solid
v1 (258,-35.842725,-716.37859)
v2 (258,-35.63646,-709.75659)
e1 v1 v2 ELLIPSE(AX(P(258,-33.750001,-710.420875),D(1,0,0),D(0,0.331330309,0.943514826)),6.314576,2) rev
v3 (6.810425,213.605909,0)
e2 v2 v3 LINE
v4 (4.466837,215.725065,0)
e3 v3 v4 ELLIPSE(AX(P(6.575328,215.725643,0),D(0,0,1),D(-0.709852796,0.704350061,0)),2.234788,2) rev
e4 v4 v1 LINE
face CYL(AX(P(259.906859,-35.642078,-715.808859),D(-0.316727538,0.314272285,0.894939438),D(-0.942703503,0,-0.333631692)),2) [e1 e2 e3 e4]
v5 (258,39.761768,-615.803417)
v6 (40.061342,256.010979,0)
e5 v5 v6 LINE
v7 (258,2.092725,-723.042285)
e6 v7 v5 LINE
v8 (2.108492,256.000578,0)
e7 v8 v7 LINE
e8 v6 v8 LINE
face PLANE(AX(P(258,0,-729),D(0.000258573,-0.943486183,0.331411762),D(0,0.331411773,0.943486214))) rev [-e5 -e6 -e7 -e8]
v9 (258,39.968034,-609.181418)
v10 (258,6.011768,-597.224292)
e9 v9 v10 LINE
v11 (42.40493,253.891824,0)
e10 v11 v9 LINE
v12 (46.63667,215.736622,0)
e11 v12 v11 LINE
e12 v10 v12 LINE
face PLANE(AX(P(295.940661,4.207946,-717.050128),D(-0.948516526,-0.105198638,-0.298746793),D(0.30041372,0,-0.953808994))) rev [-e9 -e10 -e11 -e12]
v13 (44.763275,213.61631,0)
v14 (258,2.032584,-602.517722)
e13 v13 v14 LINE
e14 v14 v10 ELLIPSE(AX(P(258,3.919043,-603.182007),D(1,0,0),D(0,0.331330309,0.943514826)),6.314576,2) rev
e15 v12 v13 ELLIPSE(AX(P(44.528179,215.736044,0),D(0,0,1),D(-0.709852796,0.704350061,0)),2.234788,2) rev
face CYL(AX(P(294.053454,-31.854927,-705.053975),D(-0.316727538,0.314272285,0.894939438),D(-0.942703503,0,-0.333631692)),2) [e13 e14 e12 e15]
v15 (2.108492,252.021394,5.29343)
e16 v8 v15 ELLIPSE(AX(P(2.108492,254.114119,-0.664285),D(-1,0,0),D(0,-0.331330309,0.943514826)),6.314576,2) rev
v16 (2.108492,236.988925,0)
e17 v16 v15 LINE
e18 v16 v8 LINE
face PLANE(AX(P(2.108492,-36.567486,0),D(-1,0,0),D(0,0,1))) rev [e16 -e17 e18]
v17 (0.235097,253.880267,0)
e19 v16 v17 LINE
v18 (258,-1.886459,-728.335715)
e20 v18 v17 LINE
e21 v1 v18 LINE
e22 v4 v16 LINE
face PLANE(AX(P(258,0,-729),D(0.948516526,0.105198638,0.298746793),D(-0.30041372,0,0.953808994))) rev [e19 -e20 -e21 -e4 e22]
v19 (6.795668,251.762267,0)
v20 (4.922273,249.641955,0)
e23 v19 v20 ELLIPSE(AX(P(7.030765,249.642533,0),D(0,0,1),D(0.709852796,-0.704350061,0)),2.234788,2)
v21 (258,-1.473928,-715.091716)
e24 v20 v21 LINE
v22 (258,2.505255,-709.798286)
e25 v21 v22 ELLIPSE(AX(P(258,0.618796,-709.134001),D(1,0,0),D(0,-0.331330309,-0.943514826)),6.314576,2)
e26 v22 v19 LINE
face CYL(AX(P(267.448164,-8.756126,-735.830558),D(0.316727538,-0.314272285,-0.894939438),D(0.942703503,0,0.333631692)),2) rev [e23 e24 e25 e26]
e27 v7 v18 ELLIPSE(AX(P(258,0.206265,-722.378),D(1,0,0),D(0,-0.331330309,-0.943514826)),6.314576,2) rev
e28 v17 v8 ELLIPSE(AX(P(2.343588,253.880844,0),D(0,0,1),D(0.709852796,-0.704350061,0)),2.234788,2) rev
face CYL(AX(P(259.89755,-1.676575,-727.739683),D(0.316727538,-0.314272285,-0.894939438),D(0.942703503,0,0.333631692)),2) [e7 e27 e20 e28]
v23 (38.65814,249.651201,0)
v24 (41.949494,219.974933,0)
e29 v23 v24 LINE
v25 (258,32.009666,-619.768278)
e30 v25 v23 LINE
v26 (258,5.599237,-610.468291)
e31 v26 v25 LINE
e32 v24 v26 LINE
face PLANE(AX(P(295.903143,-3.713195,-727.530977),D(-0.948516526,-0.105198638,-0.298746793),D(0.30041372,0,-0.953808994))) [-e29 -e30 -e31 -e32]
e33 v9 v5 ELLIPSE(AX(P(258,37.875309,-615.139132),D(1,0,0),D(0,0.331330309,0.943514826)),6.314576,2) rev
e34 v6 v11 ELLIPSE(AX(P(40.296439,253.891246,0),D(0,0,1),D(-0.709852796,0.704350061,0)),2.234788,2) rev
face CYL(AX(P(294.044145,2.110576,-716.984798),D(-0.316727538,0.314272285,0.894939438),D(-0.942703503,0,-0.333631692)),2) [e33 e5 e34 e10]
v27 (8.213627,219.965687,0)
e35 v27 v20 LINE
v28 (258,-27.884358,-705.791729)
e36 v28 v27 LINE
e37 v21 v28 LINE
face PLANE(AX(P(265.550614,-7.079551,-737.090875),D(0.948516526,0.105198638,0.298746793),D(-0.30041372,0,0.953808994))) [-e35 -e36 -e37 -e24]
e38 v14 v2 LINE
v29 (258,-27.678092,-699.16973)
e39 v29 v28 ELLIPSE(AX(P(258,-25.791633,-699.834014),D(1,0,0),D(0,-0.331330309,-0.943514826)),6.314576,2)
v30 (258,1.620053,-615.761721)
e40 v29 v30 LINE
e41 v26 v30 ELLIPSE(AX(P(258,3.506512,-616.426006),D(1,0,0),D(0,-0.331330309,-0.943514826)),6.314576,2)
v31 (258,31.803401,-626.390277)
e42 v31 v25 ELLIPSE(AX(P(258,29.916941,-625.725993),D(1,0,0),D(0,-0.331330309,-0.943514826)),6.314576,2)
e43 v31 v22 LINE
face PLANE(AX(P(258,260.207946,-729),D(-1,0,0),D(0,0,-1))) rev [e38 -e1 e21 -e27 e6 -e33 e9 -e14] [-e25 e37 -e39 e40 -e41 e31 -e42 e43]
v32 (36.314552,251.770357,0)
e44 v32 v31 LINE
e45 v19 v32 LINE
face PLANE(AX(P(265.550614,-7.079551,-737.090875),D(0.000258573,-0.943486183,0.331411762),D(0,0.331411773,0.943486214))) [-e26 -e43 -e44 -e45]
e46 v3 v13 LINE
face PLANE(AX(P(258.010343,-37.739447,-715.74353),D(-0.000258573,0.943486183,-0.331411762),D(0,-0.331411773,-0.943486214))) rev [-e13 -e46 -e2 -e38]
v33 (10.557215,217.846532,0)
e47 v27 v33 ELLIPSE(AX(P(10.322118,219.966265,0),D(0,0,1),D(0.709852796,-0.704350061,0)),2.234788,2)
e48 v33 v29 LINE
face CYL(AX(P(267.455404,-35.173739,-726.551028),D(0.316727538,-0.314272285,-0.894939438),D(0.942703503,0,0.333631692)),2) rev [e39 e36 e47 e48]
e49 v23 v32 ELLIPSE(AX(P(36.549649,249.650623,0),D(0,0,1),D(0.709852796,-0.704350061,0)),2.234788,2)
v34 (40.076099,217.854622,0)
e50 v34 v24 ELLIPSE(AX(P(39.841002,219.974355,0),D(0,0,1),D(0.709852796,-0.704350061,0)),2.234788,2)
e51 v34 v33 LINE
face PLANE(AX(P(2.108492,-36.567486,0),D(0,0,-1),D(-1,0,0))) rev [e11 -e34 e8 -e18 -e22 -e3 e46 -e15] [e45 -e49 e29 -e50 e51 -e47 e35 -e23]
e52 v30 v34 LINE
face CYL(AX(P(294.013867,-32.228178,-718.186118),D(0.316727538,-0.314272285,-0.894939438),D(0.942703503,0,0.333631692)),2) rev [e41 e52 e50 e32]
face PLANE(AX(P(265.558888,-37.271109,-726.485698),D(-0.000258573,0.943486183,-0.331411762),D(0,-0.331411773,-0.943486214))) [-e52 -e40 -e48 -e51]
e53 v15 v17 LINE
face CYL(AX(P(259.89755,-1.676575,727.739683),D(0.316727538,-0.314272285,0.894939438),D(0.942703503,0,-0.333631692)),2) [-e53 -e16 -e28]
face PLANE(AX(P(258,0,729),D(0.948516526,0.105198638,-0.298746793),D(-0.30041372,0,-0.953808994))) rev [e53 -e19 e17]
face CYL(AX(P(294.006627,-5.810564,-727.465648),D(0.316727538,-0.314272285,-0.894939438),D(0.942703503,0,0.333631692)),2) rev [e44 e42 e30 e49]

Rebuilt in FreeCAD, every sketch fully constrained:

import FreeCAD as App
import Part
import Sketcher

V = App.Vector
Q = App.Units.Quantity


def edges_at(feature, points):
    """Names of the edges that pass closest to the given points."""
    edges = feature.Shape.Edges
    near = lambda p: min(range(len(edges)), key=lambda i: edges[i].distToShape(Part.Vertex(*p))[0])
    return sorted({f"Edge{near(p) + 1}" for p in points})


def add_polygon(sketch, points):
    """Adds a closed chain of lines whose ends are joined by coincident constraints."""
    first, n = sketch.GeometryCount, len(points)
    for a, b in zip(points, points[1:] + points[:1]):
        sketch.addGeometry(Part.LineSegment(App.Vector(*a, 0), App.Vector(*b, 0)), False)
    for i in range(n):
        sketch.addConstraint(Sketcher.Constraint("Coincident", first + i, 2, first + (i + 1) % n, 1))

doc = App.newDocument("Part")
body = doc.addObject("PartDesign::Body", "Body")

# Sketch on XY plane
sketch1 = body.newObject("Sketcher::SketchObject", "Sketch")
sketch1.AttachmentSupport = (doc.getObject("XY_Plane"), [""])
sketch1.MapMode = "FlatFace"
add_polygon(sketch1, [(0, 0), (258, 0), (0, 256)])  # lines 0-2
sketch1.addConstraint([
    Sketcher.Constraint("Horizontal", 0),
    Sketcher.Constraint("Vertical", 2),
    Sketcher.Constraint("Coincident", 2, 2, -1, 1),
    Sketcher.Constraint("DistanceX", 0, 1, 0, 2, Q("258 mm")),
    Sketcher.Constraint("DistanceY", 2, 2, 2, 1, Q("256 mm")),
])
pad1 = body.newObject("PartDesign::Pad", "Pad")
pad1.Profile = sketch1
pad1.Length = 729

# Sketch on YZ plane
sketch2 = body.newObject("Sketcher::SketchObject", "Sketch001")
sketch2.AttachmentSupport = (doc.getObject("YZ_Plane"), [""])
sketch2.MapMode = "FlatFace"
add_polygon(sketch2, [(256, 0), (0, 729), (256, 729)])  # lines 0-2
sketch2.addConstraint([
    Sketcher.Constraint("Horizontal", 1),
    Sketcher.Constraint("Vertical", 2),
    Sketcher.Constraint("PointOnObject", 0, 2, -2),
    Sketcher.Constraint("PointOnObject", 2, 2, -1),
    Sketcher.Constraint("DistanceX", 1, 1, 1, 2, Q("256 mm")),
    Sketcher.Constraint("DistanceY", 2, 2, 2, 1, Q("729 mm")),
])
pocket1 = body.newObject("PartDesign::Pocket", "Pocket")
pocket1.Profile = sketch2
pocket1.Length = 727
pocket1.Reversed = True

# Sketch on an angled plane
sketch3 = body.newObject("Sketcher::SketchObject", "Sketch002")
sketch3.Placement = App.Placement(V(0, 256, 0), App.Rotation(V(0.948516526, 0.105198638, -0.298746793), V(-0.000258573, 0.943486183, 0.331411762), V(0.316727538, -0.314272285, 0.894939438), "ZXY"))
add_polygon(sketch3, [(0, 0), (0, -40), (40, -40), (40, 0)])  # lines 0-3
sketch3.addConstraint([
    Sketcher.Constraint("Vertical", 0),
    Sketcher.Constraint("Horizontal", 1),
    Sketcher.Constraint("Vertical", 2),
    Sketcher.Constraint("Horizontal", 3),
    Sketcher.Constraint("Coincident", 3, 2, -1, 1),
    Sketcher.Constraint("Equal", 3, 0),
    Sketcher.Constraint("DistanceX", 1, 1, 1, 2, Q("40 mm")),
])
pad2 = body.newObject("PartDesign::Pad", "Pad001")
pad2.Profile = sketch3
pad2.Length = 814.58026

# Sketch on XZ plane
sketch4 = body.newObject("Sketcher::SketchObject", "Sketch003")
sketch4.AttachmentSupport = (doc.getObject("XZ_Plane"), [""])
sketch4.MapMode = "FlatFace"
add_polygon(sketch4, [(357, 581), (357, 729), (258, 729), (258, 581)])  # lines 0-3
add_polygon(sketch4, [(78, -46), (78, 0), (0, 0), (0, -46)])  # lines 4-7
sketch4.addConstraint([
    Sketcher.Constraint("Vertical", 0),
    Sketcher.Constraint("Horizontal", 1),
    Sketcher.Constraint("Vertical", 2),
    Sketcher.Constraint("Horizontal", 3),
    Sketcher.Constraint("Vertical", 4),
    Sketcher.Constraint("Horizontal", 5),
    Sketcher.Constraint("Vertical", 6),
    Sketcher.Constraint("Horizontal", 7),
    Sketcher.Constraint("Coincident", 5, 2, -1, 1),
    Sketcher.Constraint("DistanceY", -1, 1, 0, 2, Q("729 mm")),
    Sketcher.Constraint("DistanceX", -1, 1, 1, 2, Q("258 mm")),
    Sketcher.Constraint("DistanceX", 1, 2, 1, 1, Q("98.578401 mm")),
    Sketcher.Constraint("DistanceY", 4, 1, 4, 2, Q("46.084081 mm")),
    Sketcher.Constraint("DistanceX", 5, 2, 5, 1, Q("77.840885 mm")),
    Sketcher.Constraint("DistanceY", 0, 1, 0, 2, Q("147.950097 mm")),
])
pocket2 = body.newObject("PartDesign::Pocket", "Pocket001")
pocket2.Profile = sketch4
pocket2.Type = "ThroughAll"
pocket2.Midplane = True

# Sketch on an angled plane
sketch5 = body.newObject("Sketcher::SketchObject", "Sketch004")
sketch5.Placement = App.Placement(V(0, 256, 0), App.Rotation(V(0.948516526, 0.105198638, -0.298746793), V(-0.000258573, 0.943486183, 0.331411762), V(0.316727538, -0.314272285, 0.894939438), "ZXY"))
add_polygon(sketch5, [(-388, 254), (-388, -362), (434, -362), (434, 254)])  # lines 0-3
add_polygon(sketch5, [(40, -40), (0, -40), (0, 0), (40, 0)])  # lines 4-7
sketch5.addConstraint([
    Sketcher.Constraint("Vertical", 0),
    Sketcher.Constraint("Horizontal", 1),
    Sketcher.Constraint("Vertical", 2),
    Sketcher.Constraint("Horizontal", 3),
    Sketcher.Constraint("Horizontal", 4),
    Sketcher.Constraint("Vertical", 5),
    Sketcher.Constraint("Horizontal", 6),
    Sketcher.Constraint("Vertical", 7),
    Sketcher.Constraint("Coincident", 5, 2, -1, 1),
    Sketcher.Constraint("Equal", 6, 5),
    Sketcher.Constraint("DistanceX", 4, 2, 4, 1, Q("40 mm")),
    Sketcher.Constraint("DistanceX", 1, 1, 1, 2, Q("821.54451 mm")),
    Sketcher.Constraint("DistanceY", 0, 2, 0, 1, Q("616.158382 mm")),
    Sketcher.Constraint("DistanceX", 0, 2, -1, 1, Q("387.86514 mm")),
    Sketcher.Constraint("DistanceY", 0, 2, -1, 1, Q("362.05031 mm")),
])
pocket3 = body.newObject("PartDesign::Pocket", "Pocket002")
pocket3.Profile = sketch5
pocket3.Type = "ThroughAll"
pocket3.Reversed = True

# Sketch on an angled plane
sketch6 = body.newObject("Sketcher::SketchObject", "Sketch005")
sketch6.Placement = App.Placement(V(0, 256, 0), App.Rotation(V(0.948516526, 0.105198638, -0.298746793), V(-0.000258573, 0.943486183, 0.331411762), V(0.316727538, -0.314272285, 0.894939438), "ZXY"))
add_polygon(sketch6, [(4, -4), (4, -36), (36, -36), (36, -4)])  # lines 0-3
sketch6.addConstraint([
    Sketcher.Constraint("Vertical", 0),
    Sketcher.Constraint("Horizontal", 1),
    Sketcher.Constraint("Vertical", 2),
    Sketcher.Constraint("Horizontal", 3),
    Sketcher.Constraint("Equal", 3, 0),
    Sketcher.Constraint("DistanceX", 1, 1, 1, 2, Q("32 mm")),
    Sketcher.Constraint("DistanceX", -1, 1, 0, 2, Q("4 mm")),
    Sketcher.Constraint("DistanceY", 0, 2, -1, 1, Q("36 mm")),
])
pocket4 = body.newObject("PartDesign::Pocket", "Pocket003")
pocket4.Profile = sketch6
pocket4.Type = "ThroughAll"
pocket4.Reversed = True
doc.recompute()

fillet = body.newObject("PartDesign::Fillet", "Fillet")
fillet.Base = (pocket4, edges_at(pocket4, [
    (131.344, 126.087, 357.878),
    (133.224, 94.038, 352.564),
    (150.092, 110.784, 304.902),
    (148.212, 142.834, 310.216),
    (129, 128, 364.5),
    (150.085, 148.933, 304.923),
    (152.436, 108.871, 298.28),
    (131.351, 87.938, 357.857),
]))
fillet.Radius = 2
body2 = doc.addObject("PartDesign::Body", "Body001")
doc.recompute()

body2.BaseFeature = body
doc.recompute()

mirroring = doc.addObject("Part::Mirroring", "Mirroring")
mirroring.Source = body
mirroring.Base = V(0, 0, 0)
mirroring.Normal = V(0, 0, 1)
body3 = doc.addObject("PartDesign::Body", "Body002")
body3.BaseFeature = mirroring
boolean = body2.newObject("PartDesign::Boolean", "Boolean")
boolean.Type = "Fuse"
boolean.addObjects([body3])
doc.recompute()

# Sketch on XZ plane
sketch7 = body2.newObject("Sketcher::SketchObject", "Sketch006")
sketch7.AttachmentSupport = (doc.getObject("XZ_Plane001"), [""])
sketch7.MapMode = "FlatFace"
add_polygon(sketch7, [(2, 0), (2, 786), (401, 786), (401, 0)])  # lines 0-3
sketch7.addConstraint([
    Sketcher.Constraint("Vertical", 0),
    Sketcher.Constraint("Horizontal", 1),
    Sketcher.Constraint("Vertical", 2),
    Sketcher.Constraint("Horizontal", 3),
    Sketcher.Constraint("PointOnObject", 2, 2, -1),
    Sketcher.Constraint("DistanceY", 0, 1, 0, 2, Q("786.430421 mm")),
    Sketcher.Constraint("DistanceX", 1, 1, 1, 2, Q("398.467294 mm")),
    Sketcher.Constraint("DistanceX", -1, 1, 0, 2, Q("2.108492 mm")),
])
pocket5 = body2.newObject("PartDesign::Pocket", "Pocket004")
pocket5.Profile = sketch7
pocket5.Type = "ThroughAll"
pocket5.Midplane = True
mirroring.Visibility = False

doc.recompute()
